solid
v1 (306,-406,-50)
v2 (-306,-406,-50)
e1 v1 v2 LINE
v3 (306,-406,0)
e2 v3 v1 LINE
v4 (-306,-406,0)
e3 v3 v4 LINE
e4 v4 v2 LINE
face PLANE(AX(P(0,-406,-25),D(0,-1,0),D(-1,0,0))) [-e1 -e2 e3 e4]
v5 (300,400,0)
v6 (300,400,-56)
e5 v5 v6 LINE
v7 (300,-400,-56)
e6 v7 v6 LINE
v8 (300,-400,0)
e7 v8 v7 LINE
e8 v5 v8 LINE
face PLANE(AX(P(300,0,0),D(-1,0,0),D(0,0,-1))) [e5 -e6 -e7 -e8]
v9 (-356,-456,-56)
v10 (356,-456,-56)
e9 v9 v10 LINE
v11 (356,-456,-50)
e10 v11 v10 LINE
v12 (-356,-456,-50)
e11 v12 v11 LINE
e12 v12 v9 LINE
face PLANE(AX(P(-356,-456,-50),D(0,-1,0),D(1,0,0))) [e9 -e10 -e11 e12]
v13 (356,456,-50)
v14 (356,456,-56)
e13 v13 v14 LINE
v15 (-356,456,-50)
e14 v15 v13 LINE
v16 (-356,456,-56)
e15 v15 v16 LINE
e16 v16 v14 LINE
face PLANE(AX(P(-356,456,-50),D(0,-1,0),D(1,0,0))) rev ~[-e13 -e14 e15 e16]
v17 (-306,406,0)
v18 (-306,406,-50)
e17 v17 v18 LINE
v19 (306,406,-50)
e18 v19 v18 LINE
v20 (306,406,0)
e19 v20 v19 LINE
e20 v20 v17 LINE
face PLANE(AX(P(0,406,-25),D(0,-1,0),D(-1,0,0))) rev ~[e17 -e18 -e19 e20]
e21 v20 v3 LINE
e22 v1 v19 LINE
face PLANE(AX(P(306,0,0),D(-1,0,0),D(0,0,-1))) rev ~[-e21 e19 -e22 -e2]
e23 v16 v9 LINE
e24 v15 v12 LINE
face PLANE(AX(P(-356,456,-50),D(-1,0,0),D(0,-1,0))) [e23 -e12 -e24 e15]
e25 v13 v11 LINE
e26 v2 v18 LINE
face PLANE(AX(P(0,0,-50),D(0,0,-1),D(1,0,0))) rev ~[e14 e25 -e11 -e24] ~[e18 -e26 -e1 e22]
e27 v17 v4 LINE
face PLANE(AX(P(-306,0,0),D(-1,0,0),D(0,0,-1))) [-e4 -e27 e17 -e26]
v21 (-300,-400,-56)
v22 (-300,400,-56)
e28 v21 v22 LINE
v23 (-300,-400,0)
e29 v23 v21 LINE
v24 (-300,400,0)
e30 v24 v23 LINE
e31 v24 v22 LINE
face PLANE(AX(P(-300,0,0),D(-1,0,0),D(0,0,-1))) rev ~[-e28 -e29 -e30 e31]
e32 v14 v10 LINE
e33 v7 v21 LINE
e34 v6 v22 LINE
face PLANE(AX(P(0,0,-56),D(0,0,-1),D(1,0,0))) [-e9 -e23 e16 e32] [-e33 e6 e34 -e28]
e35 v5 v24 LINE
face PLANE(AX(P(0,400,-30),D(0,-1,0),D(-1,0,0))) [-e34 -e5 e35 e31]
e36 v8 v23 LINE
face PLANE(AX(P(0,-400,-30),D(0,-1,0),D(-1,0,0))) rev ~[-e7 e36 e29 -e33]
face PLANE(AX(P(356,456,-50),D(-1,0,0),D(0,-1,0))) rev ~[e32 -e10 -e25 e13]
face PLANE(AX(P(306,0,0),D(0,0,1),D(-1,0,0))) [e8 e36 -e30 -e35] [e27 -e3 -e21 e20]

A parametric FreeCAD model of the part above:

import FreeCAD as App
import Part
import Sketcher
from FreeCAD import Vector


def add_polygon(sketch, points):
    """Adds a closed chain of lines whose ends are joined by coincident constraints."""
    first, n = sketch.GeometryCount, len(points)
    for a, b in zip(points, points[1:] + points[:1]):
        sketch.addGeometry(Part.LineSegment(App.Vector(*a, 0), App.Vector(*b, 0)), False)
    for i in range(n):
        sketch.addConstraint(Sketcher.Constraint("Coincident", first + i, 2, first + (i + 1) % n, 1))

doc = App.newDocument("Part")
body = doc.addObject("PartDesign::Body", "Body")

sketch1 = body.newObject("Sketcher::SketchObject", "Sketch")
sketch1.AttachmentSupport = (doc.getObject("XZ_Plane"), [""])
sketch1.MapMode = "FlatFace"
add_polygon(sketch1, [(-300, 60), (-300, 0), (300, 0), (300, 60)])
sketch1.addConstraint([
    Sketcher.Constraint("Vertical", 0),
    Sketcher.Constraint("Horizontal", 1),
    Sketcher.Constraint("Vertical", 2),
    Sketcher.Constraint("Horizontal", 3),
    Sketcher.Constraint("Symmetric", 0, 2, 1, 2, -1, 1),
    Sketcher.Constraint("DistanceX", 1, 1, 1, 2, 600.0),
    Sketcher.Constraint("DistanceY", 0, 2, 0, 1, 60.0),
])
pad1 = body.newObject("PartDesign::Pad", "Pad")
pad1.Profile = sketch1
pad1.Length = 800
pad1.Midplane = True
body2 = doc.addObject("PartDesign::Body", "Body001")

sketch2 = body2.newObject("Sketcher::SketchObject", "Sketch001")
sketch2.AttachmentSupport = (doc.getObject("XZ_Plane001"), [""])
sketch2.MapMode = "FlatFace"
add_polygon(sketch2, [(-306, 50), (-306, 0), (306, 0), (306, 50)])
sketch2.addConstraint([
    Sketcher.Constraint("Vertical", 0),
    Sketcher.Constraint("Horizontal", 1),
    Sketcher.Constraint("Vertical", 2),
    Sketcher.Constraint("Horizontal", 3),
    Sketcher.Constraint("Symmetric", 0, 2, 1, 2, -1, 1),
    Sketcher.Constraint("DistanceX", 1, 1, 1, 2, 612.0),
    Sketcher.Constraint("DistanceY", 0, 2, 0, 1, 50.0),
])
pad2 = body2.newObject("PartDesign::Pad", "Pad001")
pad2.Profile = sketch2
pad2.Length = 812
pad2.Midplane = True

sketch3 = body2.newObject("Sketcher::SketchObject", "Sketch002")
sketch3.AttachmentSupport = (doc.getObject("XY_Plane001"), [""])
sketch3.MapMode = "FlatFace"
sketch3.AttachmentOffset = App.Placement(Vector(0, 0, 50), App.Rotation())
add_polygon(sketch3, [(356, -456), (356, 456), (-356, 456), (-356, -456)])
sketch3.addConstraint([
    Sketcher.Constraint("Vertical", 0),
    Sketcher.Constraint("Horizontal", 1),
    Sketcher.Constraint("Vertical", 2),
    Sketcher.Constraint("Horizontal", 3),
    Sketcher.Constraint("Symmetric", 0, 2, 2, 2, -1, 1),
    Sketcher.Constraint("DistanceX", 1, 2, 1, 1, 712.0),
    Sketcher.Constraint("DistanceY", 0, 1, 0, 2, 912.0),
])
pad3 = body2.newObject("PartDesign::Pad", "Pad002")
pad3.Profile = sketch3
pad3.Length = 6
doc.recompute()

boolean = body2.newObject("PartDesign::Boolean", "Boolean")
boolean.Type = "Cut"
boolean.addObjects([body])
body3 = doc.addObject("PartDesign::Body", "Body002")
doc.recompute()

body2.Placement = App.Placement(Vector(0, 0, 0), App.Rotation(Vector(0, 1, 0), 180))
boolean2 = body3.newObject("PartDesign::Boolean", "Boolean001")
boolean2.Type = "Fuse"
boolean2.addObjects([body2])

doc.recompute()
